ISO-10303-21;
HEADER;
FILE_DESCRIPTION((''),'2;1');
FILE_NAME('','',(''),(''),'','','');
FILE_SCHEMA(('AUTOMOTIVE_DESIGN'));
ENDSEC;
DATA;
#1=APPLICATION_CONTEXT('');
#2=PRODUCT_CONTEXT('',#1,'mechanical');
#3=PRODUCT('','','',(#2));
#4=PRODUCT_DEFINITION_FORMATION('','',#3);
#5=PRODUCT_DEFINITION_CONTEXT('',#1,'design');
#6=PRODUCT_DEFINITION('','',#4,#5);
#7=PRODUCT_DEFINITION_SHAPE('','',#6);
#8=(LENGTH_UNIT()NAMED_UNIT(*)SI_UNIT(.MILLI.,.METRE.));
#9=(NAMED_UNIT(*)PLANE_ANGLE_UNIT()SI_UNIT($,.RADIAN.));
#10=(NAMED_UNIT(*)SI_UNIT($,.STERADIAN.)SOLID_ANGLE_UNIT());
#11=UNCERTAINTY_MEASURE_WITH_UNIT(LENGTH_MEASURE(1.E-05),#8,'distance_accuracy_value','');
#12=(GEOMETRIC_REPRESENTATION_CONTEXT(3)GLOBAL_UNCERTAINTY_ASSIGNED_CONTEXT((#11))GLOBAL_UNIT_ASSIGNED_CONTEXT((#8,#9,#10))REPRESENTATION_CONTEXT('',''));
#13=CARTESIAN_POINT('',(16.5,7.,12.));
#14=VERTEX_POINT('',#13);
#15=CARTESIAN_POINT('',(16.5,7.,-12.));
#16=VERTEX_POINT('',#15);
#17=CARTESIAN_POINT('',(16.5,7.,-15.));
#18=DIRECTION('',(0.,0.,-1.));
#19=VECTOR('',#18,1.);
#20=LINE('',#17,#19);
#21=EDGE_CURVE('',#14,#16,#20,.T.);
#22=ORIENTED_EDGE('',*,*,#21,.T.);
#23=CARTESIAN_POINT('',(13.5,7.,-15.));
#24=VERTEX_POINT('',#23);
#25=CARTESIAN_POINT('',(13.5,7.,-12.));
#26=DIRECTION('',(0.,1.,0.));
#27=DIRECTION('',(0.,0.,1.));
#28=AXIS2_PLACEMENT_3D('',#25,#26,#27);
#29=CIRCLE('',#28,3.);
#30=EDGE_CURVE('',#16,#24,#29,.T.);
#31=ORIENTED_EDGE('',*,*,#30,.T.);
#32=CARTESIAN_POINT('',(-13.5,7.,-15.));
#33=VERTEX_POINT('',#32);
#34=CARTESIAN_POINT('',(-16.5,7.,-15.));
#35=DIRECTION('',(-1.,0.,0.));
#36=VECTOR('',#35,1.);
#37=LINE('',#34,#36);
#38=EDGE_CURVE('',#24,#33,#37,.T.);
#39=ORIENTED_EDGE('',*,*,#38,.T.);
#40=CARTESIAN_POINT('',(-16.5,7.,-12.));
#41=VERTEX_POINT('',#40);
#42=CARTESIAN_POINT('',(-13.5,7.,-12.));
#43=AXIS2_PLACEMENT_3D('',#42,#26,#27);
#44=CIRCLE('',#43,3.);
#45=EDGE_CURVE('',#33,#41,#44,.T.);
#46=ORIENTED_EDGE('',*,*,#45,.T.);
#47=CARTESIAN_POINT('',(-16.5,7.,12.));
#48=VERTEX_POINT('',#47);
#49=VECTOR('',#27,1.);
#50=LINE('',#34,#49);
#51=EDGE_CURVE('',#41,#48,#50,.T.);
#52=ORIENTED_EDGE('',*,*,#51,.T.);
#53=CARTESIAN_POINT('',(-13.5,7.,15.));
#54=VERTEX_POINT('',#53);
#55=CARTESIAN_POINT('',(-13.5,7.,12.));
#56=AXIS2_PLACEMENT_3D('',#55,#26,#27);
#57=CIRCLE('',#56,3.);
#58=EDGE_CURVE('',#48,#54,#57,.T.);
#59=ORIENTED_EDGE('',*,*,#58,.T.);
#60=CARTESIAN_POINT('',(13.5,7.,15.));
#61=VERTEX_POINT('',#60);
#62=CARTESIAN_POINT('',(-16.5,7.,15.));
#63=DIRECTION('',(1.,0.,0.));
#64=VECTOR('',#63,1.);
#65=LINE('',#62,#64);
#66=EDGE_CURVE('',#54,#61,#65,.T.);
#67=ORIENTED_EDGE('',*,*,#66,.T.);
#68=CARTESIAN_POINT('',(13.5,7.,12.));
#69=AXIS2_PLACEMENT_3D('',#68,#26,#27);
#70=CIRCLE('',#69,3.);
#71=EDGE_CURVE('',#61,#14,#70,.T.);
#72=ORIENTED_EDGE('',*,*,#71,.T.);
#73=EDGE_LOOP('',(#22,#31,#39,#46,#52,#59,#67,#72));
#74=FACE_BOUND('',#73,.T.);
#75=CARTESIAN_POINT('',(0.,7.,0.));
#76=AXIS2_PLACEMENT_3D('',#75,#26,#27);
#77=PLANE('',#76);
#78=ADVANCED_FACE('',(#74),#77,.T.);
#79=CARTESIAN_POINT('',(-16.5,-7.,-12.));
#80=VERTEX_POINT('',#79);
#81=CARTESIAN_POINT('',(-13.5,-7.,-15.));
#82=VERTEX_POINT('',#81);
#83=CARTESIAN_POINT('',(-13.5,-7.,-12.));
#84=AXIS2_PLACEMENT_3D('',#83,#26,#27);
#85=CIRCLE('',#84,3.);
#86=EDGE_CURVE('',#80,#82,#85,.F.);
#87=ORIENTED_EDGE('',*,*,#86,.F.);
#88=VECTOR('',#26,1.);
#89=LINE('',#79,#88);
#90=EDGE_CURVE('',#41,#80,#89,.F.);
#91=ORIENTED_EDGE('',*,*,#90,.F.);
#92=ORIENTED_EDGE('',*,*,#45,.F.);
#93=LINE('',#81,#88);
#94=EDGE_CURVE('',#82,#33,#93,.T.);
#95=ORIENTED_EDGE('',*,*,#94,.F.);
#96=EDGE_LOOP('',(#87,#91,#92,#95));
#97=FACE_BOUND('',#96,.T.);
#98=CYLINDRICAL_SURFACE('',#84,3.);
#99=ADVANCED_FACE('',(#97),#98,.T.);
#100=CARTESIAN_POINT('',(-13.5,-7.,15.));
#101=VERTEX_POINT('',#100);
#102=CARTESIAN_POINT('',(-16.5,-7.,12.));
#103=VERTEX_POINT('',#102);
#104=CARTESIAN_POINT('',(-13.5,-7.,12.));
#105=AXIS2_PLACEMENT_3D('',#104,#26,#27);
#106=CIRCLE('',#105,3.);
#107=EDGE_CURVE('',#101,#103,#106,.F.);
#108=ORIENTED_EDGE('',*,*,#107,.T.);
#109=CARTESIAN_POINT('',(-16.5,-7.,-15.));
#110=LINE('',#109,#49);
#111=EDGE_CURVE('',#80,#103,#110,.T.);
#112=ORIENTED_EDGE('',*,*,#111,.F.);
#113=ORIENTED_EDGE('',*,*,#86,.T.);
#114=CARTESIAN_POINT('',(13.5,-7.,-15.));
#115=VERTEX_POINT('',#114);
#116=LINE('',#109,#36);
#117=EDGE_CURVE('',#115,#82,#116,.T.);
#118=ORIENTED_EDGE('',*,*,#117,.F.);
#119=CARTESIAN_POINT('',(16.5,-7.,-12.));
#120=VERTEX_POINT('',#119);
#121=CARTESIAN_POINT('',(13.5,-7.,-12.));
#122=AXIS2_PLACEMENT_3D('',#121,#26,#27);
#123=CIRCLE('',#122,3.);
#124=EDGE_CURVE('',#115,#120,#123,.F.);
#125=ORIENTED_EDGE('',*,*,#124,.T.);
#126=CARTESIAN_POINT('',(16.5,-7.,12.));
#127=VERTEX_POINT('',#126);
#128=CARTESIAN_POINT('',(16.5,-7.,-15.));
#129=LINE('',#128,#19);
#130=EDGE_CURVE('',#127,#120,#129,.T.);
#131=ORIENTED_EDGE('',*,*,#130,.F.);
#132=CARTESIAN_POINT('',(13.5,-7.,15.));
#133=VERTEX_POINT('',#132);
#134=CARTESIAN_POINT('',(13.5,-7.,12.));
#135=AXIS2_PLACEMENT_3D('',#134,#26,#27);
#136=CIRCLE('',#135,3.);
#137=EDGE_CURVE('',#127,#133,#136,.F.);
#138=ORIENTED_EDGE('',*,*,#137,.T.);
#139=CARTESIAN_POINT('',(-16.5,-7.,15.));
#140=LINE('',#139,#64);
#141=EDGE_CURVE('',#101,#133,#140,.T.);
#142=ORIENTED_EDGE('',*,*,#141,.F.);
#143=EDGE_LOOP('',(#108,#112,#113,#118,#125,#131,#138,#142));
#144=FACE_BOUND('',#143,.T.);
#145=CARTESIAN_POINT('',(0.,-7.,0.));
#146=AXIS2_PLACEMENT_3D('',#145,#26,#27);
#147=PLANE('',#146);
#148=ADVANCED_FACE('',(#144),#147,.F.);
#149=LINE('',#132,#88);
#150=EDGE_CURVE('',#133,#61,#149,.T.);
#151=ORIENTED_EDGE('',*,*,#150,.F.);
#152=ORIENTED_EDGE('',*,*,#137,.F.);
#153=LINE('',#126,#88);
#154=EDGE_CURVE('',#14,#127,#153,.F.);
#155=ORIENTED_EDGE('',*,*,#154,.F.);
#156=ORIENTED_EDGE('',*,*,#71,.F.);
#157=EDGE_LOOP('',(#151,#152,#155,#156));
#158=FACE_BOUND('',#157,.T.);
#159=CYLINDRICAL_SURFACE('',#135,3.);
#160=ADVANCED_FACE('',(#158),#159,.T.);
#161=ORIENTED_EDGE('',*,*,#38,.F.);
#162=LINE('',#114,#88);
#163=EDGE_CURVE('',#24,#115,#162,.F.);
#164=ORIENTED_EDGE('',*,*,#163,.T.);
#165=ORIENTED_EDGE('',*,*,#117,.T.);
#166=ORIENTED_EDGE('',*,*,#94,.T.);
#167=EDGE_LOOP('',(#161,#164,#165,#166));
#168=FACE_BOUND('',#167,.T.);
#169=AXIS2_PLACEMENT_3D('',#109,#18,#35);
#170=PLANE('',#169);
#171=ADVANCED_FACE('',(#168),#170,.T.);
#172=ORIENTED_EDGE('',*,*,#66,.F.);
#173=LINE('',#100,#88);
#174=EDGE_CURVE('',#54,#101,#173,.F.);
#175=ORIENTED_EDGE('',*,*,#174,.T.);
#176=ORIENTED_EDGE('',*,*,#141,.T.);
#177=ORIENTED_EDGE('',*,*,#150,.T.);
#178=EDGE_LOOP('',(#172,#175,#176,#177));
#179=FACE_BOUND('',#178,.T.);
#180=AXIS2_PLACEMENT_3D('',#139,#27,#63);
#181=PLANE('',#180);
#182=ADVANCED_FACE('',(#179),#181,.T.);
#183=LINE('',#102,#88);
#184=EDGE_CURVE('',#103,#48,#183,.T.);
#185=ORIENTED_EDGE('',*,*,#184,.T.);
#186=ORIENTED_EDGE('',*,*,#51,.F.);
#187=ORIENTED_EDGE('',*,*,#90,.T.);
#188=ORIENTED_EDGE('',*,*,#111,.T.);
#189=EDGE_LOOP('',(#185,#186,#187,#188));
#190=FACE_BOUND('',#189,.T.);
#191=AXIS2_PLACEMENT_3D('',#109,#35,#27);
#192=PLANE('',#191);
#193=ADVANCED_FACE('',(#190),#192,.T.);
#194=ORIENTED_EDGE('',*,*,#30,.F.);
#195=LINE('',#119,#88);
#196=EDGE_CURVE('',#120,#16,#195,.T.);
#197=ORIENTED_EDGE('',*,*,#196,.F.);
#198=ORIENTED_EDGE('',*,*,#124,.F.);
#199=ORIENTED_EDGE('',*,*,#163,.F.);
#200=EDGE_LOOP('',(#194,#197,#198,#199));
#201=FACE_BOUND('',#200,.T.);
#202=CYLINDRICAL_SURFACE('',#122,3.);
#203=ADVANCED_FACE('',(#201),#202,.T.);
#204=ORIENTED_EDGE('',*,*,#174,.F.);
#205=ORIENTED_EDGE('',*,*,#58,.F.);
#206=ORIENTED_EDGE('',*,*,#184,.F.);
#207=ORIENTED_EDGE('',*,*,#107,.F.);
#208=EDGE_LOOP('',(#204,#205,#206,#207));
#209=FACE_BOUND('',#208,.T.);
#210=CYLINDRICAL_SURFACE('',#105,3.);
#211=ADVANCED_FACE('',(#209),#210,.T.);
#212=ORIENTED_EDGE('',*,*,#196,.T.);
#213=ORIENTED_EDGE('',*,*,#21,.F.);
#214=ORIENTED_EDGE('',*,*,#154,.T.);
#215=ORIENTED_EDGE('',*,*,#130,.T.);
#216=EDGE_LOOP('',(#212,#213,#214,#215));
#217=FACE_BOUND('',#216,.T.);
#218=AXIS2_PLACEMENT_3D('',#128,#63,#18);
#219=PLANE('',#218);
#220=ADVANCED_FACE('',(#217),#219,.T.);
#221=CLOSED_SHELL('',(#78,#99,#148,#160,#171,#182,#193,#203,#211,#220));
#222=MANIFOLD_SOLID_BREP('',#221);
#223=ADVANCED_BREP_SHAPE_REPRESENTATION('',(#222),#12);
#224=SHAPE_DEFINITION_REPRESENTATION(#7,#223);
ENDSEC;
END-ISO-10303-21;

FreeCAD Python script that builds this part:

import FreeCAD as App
import Part
import Sketcher
Q = App.Units.Quantity


def edges_at(feature, points):
    """Names of the edges that pass closest to the given points."""
    edges = feature.Shape.Edges
    near = lambda p: min(range(len(edges)), key=lambda i: edges[i].distToShape(Part.Vertex(*p))[0])
    return sorted({f"Edge{near(p) + 1}" for p in points})


def add_polygon(sketch, points):
    """Adds a closed chain of lines whose ends are joined by coincident constraints."""
    first, n = sketch.GeometryCount, len(points)
    for a, b in zip(points, points[1:] + points[:1]):
        sketch.addGeometry(Part.LineSegment(App.Vector(*a, 0), App.Vector(*b, 0)), False)
    for i in range(n):
        sketch.addConstraint(Sketcher.Constraint("Coincident", first + i, 2, first + (i + 1) % n, 1))

doc = App.newDocument("Part")
body = doc.addObject("PartDesign::Body", "Body")

sketch1 = body.newObject("Sketcher::SketchObject", "Sketch")
sketch1.AttachmentSupport = (doc.getObject("XZ_Plane"), [""])
sketch1.MapMode = "FlatFace"
add_polygon(sketch1, [(-16.5, -15), (-16.5, 15), (16.5, 15), (16.5, -15)])
sketch1.addConstraint(Sketcher.Constraint("Vertical", 0))
sketch1.addConstraint(Sketcher.Constraint("Horizontal", 1))
sketch1.addConstraint(Sketcher.Constraint("Vertical", 2))
sketch1.addConstraint(Sketcher.Constraint("Horizontal", 3))
sketch1.addConstraint(Sketcher.Constraint("Symmetric", 0, 2, 2, 2, -1, 1))
sketch1.addConstraint(Sketcher.Constraint("DistanceX", 1, 1, 1, 2, Q("33 mm")))
sketch1.addConstraint(Sketcher.Constraint("DistanceY", 0, 1, 0, 2, Q("30 mm")))
pad1 = body.newObject("PartDesign::Pad", "Pad")
pad1.Profile = sketch1
pad1.Type = "TwoLengths"
pad1.Length = 7
pad1.Length2 = 7
pad1.Reversed = True
doc.recompute()

fillet = body.newObject("PartDesign::Fillet", "Fillet")
fillet.Base = (pad1, edges_at(pad1, [
    (-16.5, 0, -15),
    (16.5, 0, -15),
    (16.5, 0, 15),
    (-16.5, 0, 15),
]))
fillet.Radius = 3

doc.recompute()
